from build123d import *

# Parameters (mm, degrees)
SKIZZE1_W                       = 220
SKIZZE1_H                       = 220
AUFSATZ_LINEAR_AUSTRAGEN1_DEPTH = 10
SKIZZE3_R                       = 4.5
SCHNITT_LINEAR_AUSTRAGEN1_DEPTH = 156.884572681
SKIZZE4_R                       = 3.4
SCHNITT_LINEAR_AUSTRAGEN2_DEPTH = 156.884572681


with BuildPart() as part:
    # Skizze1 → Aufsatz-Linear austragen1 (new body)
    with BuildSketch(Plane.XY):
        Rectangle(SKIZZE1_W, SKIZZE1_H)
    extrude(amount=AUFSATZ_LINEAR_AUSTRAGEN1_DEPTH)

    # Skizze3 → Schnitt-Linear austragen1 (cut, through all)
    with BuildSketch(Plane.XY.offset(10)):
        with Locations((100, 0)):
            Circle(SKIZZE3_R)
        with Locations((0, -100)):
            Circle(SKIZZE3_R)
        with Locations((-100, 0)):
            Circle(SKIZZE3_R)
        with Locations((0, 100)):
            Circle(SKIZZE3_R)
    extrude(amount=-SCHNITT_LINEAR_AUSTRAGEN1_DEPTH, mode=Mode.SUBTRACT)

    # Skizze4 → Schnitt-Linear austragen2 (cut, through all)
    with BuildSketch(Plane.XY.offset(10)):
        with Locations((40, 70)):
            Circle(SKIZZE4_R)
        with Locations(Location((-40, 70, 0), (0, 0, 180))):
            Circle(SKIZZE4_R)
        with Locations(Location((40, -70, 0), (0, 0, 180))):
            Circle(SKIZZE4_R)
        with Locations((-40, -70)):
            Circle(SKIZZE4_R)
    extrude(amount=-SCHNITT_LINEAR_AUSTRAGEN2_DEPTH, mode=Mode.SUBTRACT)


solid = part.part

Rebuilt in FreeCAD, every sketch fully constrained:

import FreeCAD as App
import Part
import Sketcher
from FreeCAD import Vector


def add_polygon(sketch, points):
    """Adds a closed chain of lines whose ends are joined by coincident constraints."""
    first, n = sketch.GeometryCount, len(points)
    for a, b in zip(points, points[1:] + points[:1]):
        sketch.addGeometry(Part.LineSegment(App.Vector(*a, 0), App.Vector(*b, 0)), False)
    for i in range(n):
        sketch.addConstraint(Sketcher.Constraint("Coincident", first + i, 2, first + (i + 1) % n, 1))

doc = App.newDocument("Part")
params = doc.addObject("Spreadsheet::Sheet", "Params")
for row, (alias, value) in enumerate([
    ("sketch1_width", "220 mm"),
    ("pad1_length", "10 mm"),
    ("sketch2_diameter", "9 mm"),
    ("sketch3_diameter", "6.8 mm"),
], start=1):
    params.set(f"A{row}", alias)
    params.set(f"B{row}", "=" + value)
    params.setAlias(f"B{row}", alias)

body = doc.addObject("PartDesign::Body", "Body")

sketch1 = body.newObject("Sketcher::SketchObject", "Sketch")
sketch1.AttachmentSupport = (doc.getObject("XY_Plane"), [""])
sketch1.MapMode = "FlatFace"
add_polygon(sketch1, [(-110, 110), (-110, -110), (110, -110), (110, 110)])
sketch1.addConstraint(Sketcher.Constraint("Vertical", 0))
sketch1.addConstraint(Sketcher.Constraint("Horizontal", 1))
sketch1.addConstraint(Sketcher.Constraint("Vertical", 2))
sketch1.addConstraint(Sketcher.Constraint("Horizontal", 3))
sketch1.addConstraint(Sketcher.Constraint("Symmetric", 0, 2, 2, 2, -1, 1))
sketch1.addConstraint(Sketcher.Constraint("Equal", 3, 0))
sketch1.addConstraint(Sketcher.Constraint("DistanceX", 1, 1, 1, 2, 220.0))
sketch1.setExpression("Constraints[10]", "Params.sketch1_width")
pad1 = body.newObject("PartDesign::Pad", "Pad")
pad1.Profile = sketch1
pad1.setExpression("Length", "Params.pad1_length")

sketch2 = body.newObject("Sketcher::SketchObject", "Sketch001")
sketch2.AttachmentSupport = (doc.getObject("XY_Plane"), [""])
sketch2.MapMode = "FlatFace"
sketch2.AttachmentOffset = App.Placement(Vector(0, 0, 10), App.Rotation())
sketch2.addGeometry(Part.Circle(Vector(100, 0, 0), Vector(0, 0, 1), 4.5), False)
sketch2.addGeometry(Part.Circle(Vector(0, -100, 0), Vector(0, 0, 1), 4.5), False)
sketch2.addGeometry(Part.Circle(Vector(-100, 0, 0), Vector(0, 0, 1), 4.5), False)
sketch2.addGeometry(Part.Circle(Vector(0, 100, 0), Vector(0, 0, 1), 4.5), False)
sketch2.addConstraint(Sketcher.Constraint("Equal", 0, 1))
sketch2.addConstraint(Sketcher.Constraint("Equal", 1, 2))
sketch2.addConstraint(Sketcher.Constraint("Equal", 2, 3))
sketch2.addConstraint(Sketcher.Constraint("Symmetric", 0, 3, 2, 3, -1, 1))
sketch2.addConstraint(Sketcher.Constraint("Symmetric", 1, 3, 3, 3, -1, 1))
sketch2.addConstraint(Sketcher.Constraint("PointOnObject", 0, 3, -1))
sketch2.addConstraint(Sketcher.Constraint("PointOnObject", 1, 3, -2))
sketch2.addConstraint(Sketcher.Constraint("Diameter", 0, 9.0))
sketch2.addConstraint(Sketcher.Constraint("DistanceX", -1, 1, 0, 3, 100.0))
sketch2.addConstraint(Sketcher.Constraint("DistanceY", 1, 3, -1, 1, 100.0))
sketch2.setExpression("Constraints[7]", "Params.sketch2_diameter")
pocket1 = body.newObject("PartDesign::Pocket", "Pocket")
pocket1.Profile = sketch2
pocket1.Type = "ThroughAll"

sketch3 = body.newObject("Sketcher::SketchObject", "Sketch002")
sketch3.AttachmentSupport = (doc.getObject("XY_Plane"), [""])
sketch3.MapMode = "FlatFace"
sketch3.AttachmentOffset = App.Placement(Vector(0, 0, 10), App.Rotation())
sketch3.addGeometry(Part.Circle(Vector(40, 70, 0), Vector(0, 0, 1), 3.4), False)
sketch3.addGeometry(Part.Circle(Vector(-40, 70, 0), Vector(0, 0, 1), 3.4), False)
sketch3.addGeometry(Part.Circle(Vector(40, -70, 0), Vector(0, 0, 1), 3.4), False)
sketch3.addGeometry(Part.Circle(Vector(-40, -70, 0), Vector(0, 0, 1), 3.4), False)
sketch3.addConstraint(Sketcher.Constraint("Equal", 0, 1))
sketch3.addConstraint(Sketcher.Constraint("Equal", 1, 2))
sketch3.addConstraint(Sketcher.Constraint("Equal", 2, 3))
sketch3.addConstraint(Sketcher.Constraint("Symmetric", 1, 3, 2, 3, -1, 1))
sketch3.addConstraint(Sketcher.Constraint("Symmetric", 0, 3, 3, 3, -1, 1))
sketch3.addConstraint(Sketcher.Constraint("Symmetric", 0, 3, 1, 3, -2))
sketch3.addConstraint(Sketcher.Constraint("Diameter", 0, 6.8))
sketch3.addConstraint(Sketcher.Constraint("DistanceX", -1, 1, 0, 3, 40.0))
sketch3.addConstraint(Sketcher.Constraint("DistanceY", -1, 1, 0, 3, 70.0))
sketch3.setExpression("Constraints[6]", "Params.sketch3_diameter")
pocket2 = body.newObject("PartDesign::Pocket", "Pocket001")
pocket2.Profile = sketch3
pocket2.Type = "ThroughAll"

doc.recompute()
